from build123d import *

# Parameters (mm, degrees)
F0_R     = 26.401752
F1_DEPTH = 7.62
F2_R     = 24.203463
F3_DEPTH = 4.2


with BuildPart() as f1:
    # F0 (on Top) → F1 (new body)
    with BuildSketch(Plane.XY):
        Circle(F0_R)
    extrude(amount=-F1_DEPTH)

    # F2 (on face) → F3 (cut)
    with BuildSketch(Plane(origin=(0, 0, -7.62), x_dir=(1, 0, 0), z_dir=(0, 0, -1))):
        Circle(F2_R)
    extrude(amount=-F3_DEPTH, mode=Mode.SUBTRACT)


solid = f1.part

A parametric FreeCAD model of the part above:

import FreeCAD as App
import Part
import Sketcher
Q = App.Units.Quantity

doc = App.newDocument("Part")
body = doc.addObject("PartDesign::Body", "Body")

# Sketch on XY plane
sketch1 = body.newObject("Sketcher::SketchObject", "Sketch")
sketch1.AttachmentSupport = (doc.getObject("XY_Plane"), [""])
sketch1.MapMode = "FlatFace"
sketch1.addGeometry(Part.Circle(App.Vector(0, 0, 0), App.Vector(0, 0, 1), 26.401752), False)
sketch1.addConstraint(Sketcher.Constraint("Coincident", 0, 3, -1, 1))
sketch1.addConstraint(Sketcher.Constraint("Diameter", 0, Q("52.803504 mm")))
pad1 = body.newObject("PartDesign::Pad", "Pad")
pad1.Profile = sketch1
pad1.Length = 7.62
pad1.Reversed = True

# Sketch on XY plane
sketch2 = body.newObject("Sketcher::SketchObject", "Sketch001")
sketch2.AttachmentSupport = (doc.getObject("XY_Plane"), [""])
sketch2.MapMode = "FlatFace"
sketch2.AttachmentOffset = App.Placement(App.Vector(0, 0, -7.62), App.Rotation())
sketch2.addGeometry(Part.Circle(App.Vector(0, 0, 0), App.Vector(0, 0, 1), 24.203463), False)
sketch2.addConstraint(Sketcher.Constraint("Coincident", 0, 3, -1, 1))
sketch2.addConstraint(Sketcher.Constraint("Diameter", 0, Q("48.406926 mm")))
pocket1 = body.newObject("PartDesign::Pocket", "Pocket")
pocket1.Profile = sketch2
pocket1.Length = 4.2
pocket1.Reversed = True

doc.recompute()
